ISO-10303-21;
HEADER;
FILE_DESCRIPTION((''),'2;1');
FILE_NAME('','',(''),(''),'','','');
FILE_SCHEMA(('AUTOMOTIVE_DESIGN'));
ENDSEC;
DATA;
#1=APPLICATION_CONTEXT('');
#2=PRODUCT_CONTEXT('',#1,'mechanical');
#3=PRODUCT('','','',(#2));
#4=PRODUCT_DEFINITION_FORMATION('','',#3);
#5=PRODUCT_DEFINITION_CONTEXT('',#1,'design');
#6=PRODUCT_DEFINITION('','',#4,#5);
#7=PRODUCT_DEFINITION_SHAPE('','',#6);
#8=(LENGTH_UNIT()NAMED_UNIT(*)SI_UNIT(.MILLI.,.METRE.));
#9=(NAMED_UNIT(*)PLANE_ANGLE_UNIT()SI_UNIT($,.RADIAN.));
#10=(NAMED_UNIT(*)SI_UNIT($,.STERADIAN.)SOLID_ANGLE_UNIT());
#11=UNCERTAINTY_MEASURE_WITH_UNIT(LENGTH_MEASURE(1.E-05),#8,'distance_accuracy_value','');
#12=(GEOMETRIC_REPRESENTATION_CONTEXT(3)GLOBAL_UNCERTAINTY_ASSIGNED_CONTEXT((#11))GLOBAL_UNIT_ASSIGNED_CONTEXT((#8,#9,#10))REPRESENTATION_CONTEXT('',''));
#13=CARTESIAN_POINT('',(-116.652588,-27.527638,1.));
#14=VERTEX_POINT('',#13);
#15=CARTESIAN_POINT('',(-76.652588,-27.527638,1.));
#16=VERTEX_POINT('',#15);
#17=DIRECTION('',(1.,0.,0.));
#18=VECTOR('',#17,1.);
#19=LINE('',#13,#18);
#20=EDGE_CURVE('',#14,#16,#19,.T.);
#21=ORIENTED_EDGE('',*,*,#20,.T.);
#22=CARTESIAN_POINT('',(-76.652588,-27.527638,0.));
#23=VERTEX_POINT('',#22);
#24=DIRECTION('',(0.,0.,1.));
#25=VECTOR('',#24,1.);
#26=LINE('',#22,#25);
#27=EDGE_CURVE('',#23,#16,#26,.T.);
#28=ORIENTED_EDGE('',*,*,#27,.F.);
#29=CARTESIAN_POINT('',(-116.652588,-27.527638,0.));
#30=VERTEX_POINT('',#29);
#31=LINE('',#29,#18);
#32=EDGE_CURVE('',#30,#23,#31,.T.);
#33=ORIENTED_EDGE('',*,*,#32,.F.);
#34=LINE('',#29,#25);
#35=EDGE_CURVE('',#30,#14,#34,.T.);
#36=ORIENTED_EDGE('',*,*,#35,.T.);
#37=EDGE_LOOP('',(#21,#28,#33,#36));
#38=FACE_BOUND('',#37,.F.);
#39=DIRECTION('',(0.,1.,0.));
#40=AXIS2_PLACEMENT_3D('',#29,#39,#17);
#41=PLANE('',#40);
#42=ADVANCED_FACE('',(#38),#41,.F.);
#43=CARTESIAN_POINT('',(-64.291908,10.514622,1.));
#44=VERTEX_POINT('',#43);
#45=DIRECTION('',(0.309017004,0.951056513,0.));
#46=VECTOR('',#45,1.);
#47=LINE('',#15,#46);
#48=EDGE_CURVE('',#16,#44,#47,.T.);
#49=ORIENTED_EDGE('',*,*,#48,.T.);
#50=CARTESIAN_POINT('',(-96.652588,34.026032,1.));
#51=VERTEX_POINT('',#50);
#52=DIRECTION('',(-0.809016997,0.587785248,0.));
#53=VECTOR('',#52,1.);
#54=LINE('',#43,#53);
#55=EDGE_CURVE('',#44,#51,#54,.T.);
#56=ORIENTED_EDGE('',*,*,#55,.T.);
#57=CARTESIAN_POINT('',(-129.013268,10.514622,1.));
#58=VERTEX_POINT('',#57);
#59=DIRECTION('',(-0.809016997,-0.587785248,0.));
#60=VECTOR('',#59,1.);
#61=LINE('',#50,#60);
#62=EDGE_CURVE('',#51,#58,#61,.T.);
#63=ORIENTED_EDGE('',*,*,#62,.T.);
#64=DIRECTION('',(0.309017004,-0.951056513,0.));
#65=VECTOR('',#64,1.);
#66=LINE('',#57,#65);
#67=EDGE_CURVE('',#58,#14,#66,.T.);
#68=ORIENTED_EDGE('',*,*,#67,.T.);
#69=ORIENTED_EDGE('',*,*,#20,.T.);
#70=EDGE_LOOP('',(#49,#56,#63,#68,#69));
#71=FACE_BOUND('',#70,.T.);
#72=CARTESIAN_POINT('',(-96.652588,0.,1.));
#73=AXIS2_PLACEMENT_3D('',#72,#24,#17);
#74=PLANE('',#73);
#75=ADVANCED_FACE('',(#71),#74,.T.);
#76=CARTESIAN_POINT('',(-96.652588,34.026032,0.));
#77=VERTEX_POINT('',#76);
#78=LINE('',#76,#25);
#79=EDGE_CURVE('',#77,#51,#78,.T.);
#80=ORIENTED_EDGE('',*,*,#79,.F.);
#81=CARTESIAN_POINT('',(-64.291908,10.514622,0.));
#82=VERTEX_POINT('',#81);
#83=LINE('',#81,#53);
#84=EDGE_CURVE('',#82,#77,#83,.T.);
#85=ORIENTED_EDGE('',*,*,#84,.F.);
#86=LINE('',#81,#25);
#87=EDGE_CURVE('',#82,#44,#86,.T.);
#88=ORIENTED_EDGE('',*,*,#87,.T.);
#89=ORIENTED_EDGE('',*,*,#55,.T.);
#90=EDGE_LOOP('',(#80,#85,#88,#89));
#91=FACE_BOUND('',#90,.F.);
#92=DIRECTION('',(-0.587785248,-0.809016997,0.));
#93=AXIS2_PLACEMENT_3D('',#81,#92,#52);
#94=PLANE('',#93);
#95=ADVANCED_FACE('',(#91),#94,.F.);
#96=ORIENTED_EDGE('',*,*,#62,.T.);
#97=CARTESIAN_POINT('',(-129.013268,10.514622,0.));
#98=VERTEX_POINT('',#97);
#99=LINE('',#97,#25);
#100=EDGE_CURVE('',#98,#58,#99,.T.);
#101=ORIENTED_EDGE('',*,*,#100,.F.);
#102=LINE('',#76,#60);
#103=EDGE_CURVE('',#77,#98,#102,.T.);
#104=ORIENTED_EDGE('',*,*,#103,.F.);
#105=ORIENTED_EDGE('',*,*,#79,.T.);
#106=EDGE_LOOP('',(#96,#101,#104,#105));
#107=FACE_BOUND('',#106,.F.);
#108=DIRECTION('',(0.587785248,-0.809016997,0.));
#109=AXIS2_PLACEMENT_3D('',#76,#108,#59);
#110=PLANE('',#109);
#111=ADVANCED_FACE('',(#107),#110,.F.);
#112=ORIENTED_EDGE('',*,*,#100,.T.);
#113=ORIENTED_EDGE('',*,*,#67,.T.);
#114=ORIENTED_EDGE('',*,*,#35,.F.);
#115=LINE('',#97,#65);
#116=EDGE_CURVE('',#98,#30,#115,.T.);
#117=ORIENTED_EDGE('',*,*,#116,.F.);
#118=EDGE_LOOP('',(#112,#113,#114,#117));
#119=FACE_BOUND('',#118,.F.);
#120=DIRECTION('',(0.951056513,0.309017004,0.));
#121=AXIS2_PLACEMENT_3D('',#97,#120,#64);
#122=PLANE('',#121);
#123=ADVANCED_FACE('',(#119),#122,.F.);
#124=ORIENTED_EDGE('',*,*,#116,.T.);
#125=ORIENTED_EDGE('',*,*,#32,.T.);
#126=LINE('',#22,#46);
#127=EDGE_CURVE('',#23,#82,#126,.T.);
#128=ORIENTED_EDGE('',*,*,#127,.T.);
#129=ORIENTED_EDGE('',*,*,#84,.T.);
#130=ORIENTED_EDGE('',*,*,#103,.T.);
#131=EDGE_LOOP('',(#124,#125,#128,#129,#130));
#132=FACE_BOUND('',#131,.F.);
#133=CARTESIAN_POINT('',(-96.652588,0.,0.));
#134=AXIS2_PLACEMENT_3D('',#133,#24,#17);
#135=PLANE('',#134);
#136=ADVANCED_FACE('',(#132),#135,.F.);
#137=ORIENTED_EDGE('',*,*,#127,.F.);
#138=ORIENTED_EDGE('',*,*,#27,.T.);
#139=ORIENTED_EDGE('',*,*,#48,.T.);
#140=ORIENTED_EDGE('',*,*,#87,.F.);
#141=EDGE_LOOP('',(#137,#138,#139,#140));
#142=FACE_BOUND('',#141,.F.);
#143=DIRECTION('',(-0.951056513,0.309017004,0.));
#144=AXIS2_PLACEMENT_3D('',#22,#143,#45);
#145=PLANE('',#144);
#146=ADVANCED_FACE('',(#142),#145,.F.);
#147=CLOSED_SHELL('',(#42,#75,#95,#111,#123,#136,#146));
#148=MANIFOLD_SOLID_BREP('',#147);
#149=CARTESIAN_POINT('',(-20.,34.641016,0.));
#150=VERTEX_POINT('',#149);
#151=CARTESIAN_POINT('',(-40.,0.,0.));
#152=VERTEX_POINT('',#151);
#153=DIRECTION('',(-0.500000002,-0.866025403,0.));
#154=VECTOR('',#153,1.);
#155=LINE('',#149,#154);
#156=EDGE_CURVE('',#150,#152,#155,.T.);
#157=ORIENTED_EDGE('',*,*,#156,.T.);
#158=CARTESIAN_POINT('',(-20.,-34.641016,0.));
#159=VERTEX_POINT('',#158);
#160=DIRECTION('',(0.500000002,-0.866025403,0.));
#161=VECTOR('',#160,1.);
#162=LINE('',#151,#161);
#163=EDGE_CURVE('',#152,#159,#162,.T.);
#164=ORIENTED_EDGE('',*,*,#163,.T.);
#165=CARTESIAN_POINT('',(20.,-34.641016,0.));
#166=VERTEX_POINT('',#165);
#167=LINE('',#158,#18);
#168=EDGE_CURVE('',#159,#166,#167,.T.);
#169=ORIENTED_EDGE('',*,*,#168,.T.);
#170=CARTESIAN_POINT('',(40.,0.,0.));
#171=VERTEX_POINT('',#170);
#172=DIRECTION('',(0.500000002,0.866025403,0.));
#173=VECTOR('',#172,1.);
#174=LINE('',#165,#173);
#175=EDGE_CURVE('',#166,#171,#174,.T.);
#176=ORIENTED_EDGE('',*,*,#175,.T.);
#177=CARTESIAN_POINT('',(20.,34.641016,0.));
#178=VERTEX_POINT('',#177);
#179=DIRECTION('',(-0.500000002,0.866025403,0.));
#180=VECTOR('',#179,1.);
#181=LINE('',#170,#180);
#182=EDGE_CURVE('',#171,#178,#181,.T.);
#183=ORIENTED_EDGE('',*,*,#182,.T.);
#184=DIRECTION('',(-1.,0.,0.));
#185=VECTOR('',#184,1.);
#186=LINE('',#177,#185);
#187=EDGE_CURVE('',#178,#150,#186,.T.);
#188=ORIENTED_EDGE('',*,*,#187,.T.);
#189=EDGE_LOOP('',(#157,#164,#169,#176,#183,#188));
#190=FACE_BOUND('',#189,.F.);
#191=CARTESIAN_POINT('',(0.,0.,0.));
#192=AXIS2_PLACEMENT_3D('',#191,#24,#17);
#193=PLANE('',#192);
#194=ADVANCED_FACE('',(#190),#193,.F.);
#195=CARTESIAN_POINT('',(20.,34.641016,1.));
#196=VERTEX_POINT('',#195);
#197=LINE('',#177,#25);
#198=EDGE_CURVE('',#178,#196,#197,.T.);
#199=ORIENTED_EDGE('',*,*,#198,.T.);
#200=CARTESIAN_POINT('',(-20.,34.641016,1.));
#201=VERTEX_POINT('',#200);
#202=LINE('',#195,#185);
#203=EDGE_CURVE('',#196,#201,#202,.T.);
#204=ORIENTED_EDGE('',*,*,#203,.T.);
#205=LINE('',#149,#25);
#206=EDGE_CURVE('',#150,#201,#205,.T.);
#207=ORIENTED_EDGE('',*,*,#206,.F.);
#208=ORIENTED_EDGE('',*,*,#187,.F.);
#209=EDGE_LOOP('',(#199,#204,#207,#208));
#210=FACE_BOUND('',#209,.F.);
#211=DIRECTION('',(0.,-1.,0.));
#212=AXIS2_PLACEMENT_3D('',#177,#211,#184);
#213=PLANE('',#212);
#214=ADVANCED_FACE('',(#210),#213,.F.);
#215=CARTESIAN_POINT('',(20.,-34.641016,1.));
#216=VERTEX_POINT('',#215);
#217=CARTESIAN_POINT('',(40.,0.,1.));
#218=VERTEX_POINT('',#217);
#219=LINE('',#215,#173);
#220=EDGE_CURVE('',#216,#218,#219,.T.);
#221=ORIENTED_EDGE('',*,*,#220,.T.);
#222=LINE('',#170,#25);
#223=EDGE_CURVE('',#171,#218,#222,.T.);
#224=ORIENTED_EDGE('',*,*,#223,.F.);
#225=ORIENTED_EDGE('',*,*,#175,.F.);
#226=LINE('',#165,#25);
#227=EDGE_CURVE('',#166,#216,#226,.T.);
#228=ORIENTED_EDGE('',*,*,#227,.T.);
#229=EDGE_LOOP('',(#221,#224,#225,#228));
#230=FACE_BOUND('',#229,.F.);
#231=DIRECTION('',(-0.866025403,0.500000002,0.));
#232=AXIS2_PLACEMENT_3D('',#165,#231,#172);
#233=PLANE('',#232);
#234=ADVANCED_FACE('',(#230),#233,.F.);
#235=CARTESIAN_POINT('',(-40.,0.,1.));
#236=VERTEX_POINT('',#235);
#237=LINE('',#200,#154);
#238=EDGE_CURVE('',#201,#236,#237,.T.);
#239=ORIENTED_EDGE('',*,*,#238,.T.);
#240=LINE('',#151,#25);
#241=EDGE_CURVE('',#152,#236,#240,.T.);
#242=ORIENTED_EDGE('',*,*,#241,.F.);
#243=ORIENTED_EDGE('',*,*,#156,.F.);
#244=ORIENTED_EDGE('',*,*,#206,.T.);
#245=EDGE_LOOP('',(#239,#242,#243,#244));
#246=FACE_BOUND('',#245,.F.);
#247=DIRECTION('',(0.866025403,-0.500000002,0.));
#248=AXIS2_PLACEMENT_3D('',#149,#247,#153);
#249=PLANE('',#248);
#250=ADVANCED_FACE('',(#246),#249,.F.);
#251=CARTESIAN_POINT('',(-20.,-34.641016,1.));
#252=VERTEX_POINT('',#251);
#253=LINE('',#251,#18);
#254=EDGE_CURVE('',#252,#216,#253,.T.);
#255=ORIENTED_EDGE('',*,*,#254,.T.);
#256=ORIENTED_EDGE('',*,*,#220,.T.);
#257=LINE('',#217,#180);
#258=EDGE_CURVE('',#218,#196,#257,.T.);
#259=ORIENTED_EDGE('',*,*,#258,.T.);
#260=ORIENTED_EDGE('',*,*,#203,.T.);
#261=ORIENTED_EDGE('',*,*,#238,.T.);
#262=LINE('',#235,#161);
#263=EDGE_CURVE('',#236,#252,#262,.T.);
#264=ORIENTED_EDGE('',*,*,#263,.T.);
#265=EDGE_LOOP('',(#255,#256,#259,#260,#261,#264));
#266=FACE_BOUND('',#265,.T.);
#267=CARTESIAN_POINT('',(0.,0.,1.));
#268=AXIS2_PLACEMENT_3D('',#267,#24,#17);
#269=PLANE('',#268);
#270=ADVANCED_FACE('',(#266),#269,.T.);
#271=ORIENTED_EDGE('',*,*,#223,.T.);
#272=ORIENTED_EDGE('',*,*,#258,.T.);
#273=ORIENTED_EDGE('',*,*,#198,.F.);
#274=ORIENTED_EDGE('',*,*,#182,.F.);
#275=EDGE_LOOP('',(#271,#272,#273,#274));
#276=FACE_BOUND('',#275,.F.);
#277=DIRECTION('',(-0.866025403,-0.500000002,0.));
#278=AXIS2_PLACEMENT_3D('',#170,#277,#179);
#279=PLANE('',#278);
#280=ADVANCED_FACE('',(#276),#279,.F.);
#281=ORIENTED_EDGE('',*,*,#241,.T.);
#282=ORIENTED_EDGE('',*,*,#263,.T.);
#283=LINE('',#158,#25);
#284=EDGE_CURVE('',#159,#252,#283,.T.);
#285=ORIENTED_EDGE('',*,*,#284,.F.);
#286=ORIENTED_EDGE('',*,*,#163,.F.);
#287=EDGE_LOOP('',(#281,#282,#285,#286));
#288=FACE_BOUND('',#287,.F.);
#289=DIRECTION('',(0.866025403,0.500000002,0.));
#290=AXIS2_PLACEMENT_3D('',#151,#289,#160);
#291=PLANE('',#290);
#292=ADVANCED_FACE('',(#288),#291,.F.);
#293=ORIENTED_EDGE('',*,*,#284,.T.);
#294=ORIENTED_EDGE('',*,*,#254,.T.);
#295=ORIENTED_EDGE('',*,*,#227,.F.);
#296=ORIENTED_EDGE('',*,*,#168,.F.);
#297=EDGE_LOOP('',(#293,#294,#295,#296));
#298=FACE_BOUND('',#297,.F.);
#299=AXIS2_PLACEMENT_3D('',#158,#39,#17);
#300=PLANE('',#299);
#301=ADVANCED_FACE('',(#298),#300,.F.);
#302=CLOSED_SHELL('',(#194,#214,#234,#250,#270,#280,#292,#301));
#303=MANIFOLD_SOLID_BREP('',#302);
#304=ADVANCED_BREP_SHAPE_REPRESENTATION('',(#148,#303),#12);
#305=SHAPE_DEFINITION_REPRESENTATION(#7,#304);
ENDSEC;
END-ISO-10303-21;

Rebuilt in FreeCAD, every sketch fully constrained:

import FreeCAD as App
import Part
import Sketcher
Q = App.Units.Quantity

doc = App.newDocument("Part")
body = doc.addObject("PartDesign::Body", "Body")

# Sketch on XY plane
sketch1 = body.newObject("Sketcher::SketchObject", "Sketch")
sketch1.AttachmentSupport = (doc.getObject("XY_Plane"), [""])
sketch1.MapMode = "FlatFace"
sketch1.addGeometry([
    Part.LineSegment(App.Vector(-20, -34.641016, 0), App.Vector(20, -34.641016, 0)),  # 0
    Part.LineSegment(App.Vector(20, -34.641016, 0), App.Vector(40, 0, 0)),  # 1
    Part.LineSegment(App.Vector(40, 0, 0), App.Vector(20, 34.641016, 0)),  # 2
    Part.LineSegment(App.Vector(20, 34.641016, 0), App.Vector(-20, 34.641016, 0)),  # 3
    Part.LineSegment(App.Vector(-20, 34.641016, 0), App.Vector(-40, 0, 0)),  # 4
    Part.LineSegment(App.Vector(-40, 0, 0), App.Vector(-20, -34.641016, 0)),  # 5
], False)
sketch1.addConstraint([
    Sketcher.Constraint("Coincident", 0, 2, 1, 1),
    Sketcher.Constraint("Coincident", 1, 2, 2, 1),
    Sketcher.Constraint("Coincident", 2, 2, 3, 1),
    Sketcher.Constraint("Coincident", 3, 2, 4, 1),
    Sketcher.Constraint("Coincident", 4, 2, 5, 1),
    Sketcher.Constraint("Coincident", 5, 2, 0, 1),
    Sketcher.Constraint("Horizontal", 0),
    Sketcher.Constraint("Horizontal", 3),
    Sketcher.Constraint("Symmetric", 0, 2, 3, 2, -1, 1),
    Sketcher.Constraint("Symmetric", 1, 2, 4, 2, -1, 1),
    Sketcher.Constraint("PointOnObject", 1, 2, -1),
    Sketcher.Constraint("Parallel", 2, 5),
    Sketcher.Constraint("Vertical", 0, 2, 2, 2),
    Sketcher.Constraint("DistanceX", 0, 1, 0, 2, Q("40 mm")),
    Sketcher.Constraint("Angle", 1, Q("60 deg")),
    Sketcher.Constraint("Distance", 1, Q("40 mm")),
])
pad1 = body.newObject("PartDesign::Pad", "Pad")
pad1.Profile = sketch1
pad1.Length = 1
body2 = doc.addObject("PartDesign::Body", "Body001")

# Sketch on XY plane
sketch2 = body2.newObject("Sketcher::SketchObject", "Sketch001")
sketch2.AttachmentSupport = (doc.getObject("XY_Plane001"), [""])
sketch2.MapMode = "FlatFace"
sketch2.addGeometry([
    Part.LineSegment(App.Vector(-116.652588, -27.527638, 0), App.Vector(-76.652588, -27.527638, 0)),  # 0
    Part.LineSegment(App.Vector(-76.652588, -27.527638, 0), App.Vector(-64.291908, 10.514622, 0)),  # 1
    Part.LineSegment(App.Vector(-64.291908, 10.514622, 0), App.Vector(-96.652588, 34.026032, 0)),  # 2
    Part.LineSegment(App.Vector(-96.652588, 34.026032, 0), App.Vector(-129.013268, 10.514622, 0)),  # 3
    Part.LineSegment(App.Vector(-129.013268, 10.514622, 0), App.Vector(-116.652588, -27.527638, 0)),  # 4
], False)
sketch2.addConstraint([
    Sketcher.Constraint("Coincident", 0, 2, 1, 1),
    Sketcher.Constraint("Coincident", 1, 2, 2, 1),
    Sketcher.Constraint("Coincident", 2, 2, 3, 1),
    Sketcher.Constraint("Coincident", 3, 2, 4, 1),
    Sketcher.Constraint("Coincident", 4, 2, 0, 1),
    Sketcher.Constraint("Horizontal", 0),
    Sketcher.Constraint("Horizontal", 1, 2, 3, 2),
    Sketcher.Constraint("Equal", 1, 2),
    Sketcher.Constraint("Equal", 2, 3),
    Sketcher.Constraint("Equal", 3, 4),
    Sketcher.Constraint("DistanceX", 0, 1, 0, 2, Q("40 mm")),
    Sketcher.Constraint("Angle", 1, Q("71.999999 deg")),
    Sketcher.Constraint("Angle", 2, Q("144 deg")),
    Sketcher.Constraint("DistanceX", 1, 2, -1, 1, Q("64.291908 mm")),
    Sketcher.Constraint("DistanceY", -1, 1, 1, 2, Q("10.514622 mm")),
])
pad2 = body2.newObject("PartDesign::Pad", "Pad001")
pad2.Profile = sketch2
pad2.Length = 1

doc.recompute()
